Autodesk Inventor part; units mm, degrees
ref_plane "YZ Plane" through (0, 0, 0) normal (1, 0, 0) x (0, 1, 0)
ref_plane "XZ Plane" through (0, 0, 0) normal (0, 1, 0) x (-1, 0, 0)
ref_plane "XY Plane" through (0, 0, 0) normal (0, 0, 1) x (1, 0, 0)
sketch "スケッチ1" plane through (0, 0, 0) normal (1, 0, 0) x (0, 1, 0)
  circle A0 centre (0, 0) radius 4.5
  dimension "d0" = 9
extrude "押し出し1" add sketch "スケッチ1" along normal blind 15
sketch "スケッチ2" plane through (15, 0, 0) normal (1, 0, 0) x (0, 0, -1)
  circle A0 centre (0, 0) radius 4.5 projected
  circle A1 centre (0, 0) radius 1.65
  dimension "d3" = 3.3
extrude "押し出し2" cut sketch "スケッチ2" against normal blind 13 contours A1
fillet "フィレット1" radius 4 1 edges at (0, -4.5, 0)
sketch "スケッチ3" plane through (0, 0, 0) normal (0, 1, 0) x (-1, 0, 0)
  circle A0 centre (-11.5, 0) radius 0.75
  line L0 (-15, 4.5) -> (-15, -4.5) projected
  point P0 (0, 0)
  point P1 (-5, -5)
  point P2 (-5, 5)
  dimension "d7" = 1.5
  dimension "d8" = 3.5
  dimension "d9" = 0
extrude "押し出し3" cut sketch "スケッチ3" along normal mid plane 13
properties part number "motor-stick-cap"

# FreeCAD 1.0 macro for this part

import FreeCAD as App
import Part
import Sketcher
from FreeCAD import Vector
Q = App.Units.Quantity


def edges_at(feature, points):
    """Names of the edges that pass closest to the given points."""
    edges = feature.Shape.Edges
    near = lambda p: min(range(len(edges)), key=lambda i: edges[i].distToShape(Part.Vertex(*p))[0])
    return sorted({f"Edge{near(p) + 1}" for p in points})

doc = App.newDocument("Part")
body = doc.addObject("PartDesign::Body", "Body")

# Sketch on YZ plane
sketch1 = body.newObject("Sketcher::SketchObject", "Sketch")
sketch1.AttachmentSupport = (doc.getObject("YZ_Plane"), [""])
sketch1.MapMode = "FlatFace"
sketch1.addGeometry(Part.Circle(Vector(0, 0, 0), Vector(0, 0, 1), 4.5), False)
sketch1.addConstraint([
    Sketcher.Constraint("Coincident", 0, 3, -1, 1),
    Sketcher.Constraint("Diameter", 0, Q("9 mm")),
])
pad1 = body.newObject("PartDesign::Pad", "Pad")
pad1.Profile = sketch1
pad1.Length = 15

# Sketch on YZ plane
sketch2 = body.newObject("Sketcher::SketchObject", "Sketch001")
sketch2.AttachmentSupport = (doc.getObject("YZ_Plane"), [""])
sketch2.MapMode = "FlatFace"
sketch2.AttachmentOffset = App.Placement(Vector(0, 0, 15), App.Rotation())
sketch2.addGeometry(Part.Circle(Vector(0, 0, 0), Vector(0, 0, 1), 1.6), False)
sketch2.addConstraint([
    Sketcher.Constraint("Coincident", 0, 3, -1, 1),
    Sketcher.Constraint("Diameter", 0, Q("3.3 mm")),
])
pocket1 = body.newObject("PartDesign::Pocket", "Pocket")
pocket1.Profile = sketch2
pocket1.Length = 13
doc.recompute()

fillet = body.newObject("PartDesign::Fillet", "Fillet")
fillet.Base = (pocket1, edges_at(pocket1, [(0, -4.5, 0)]))
fillet.Radius = 4

# Sketch on XZ plane
sketch3 = body.newObject("Sketcher::SketchObject", "Sketch002")
sketch3.AttachmentSupport = (doc.getObject("XZ_Plane"), [""])
sketch3.MapMode = "FlatFace"
sketch3.addGeometry(Part.Circle(Vector(11.5, 0, 0), Vector(0, 0, 1), 0.8), False)
sketch3.addConstraint([
    Sketcher.Constraint("PointOnObject", 0, 3, -1),
    Sketcher.Constraint("Diameter", 0, Q("1.5 mm")),
    Sketcher.Constraint("DistanceX", -1, 1, 0, 3, Q("11.5 mm")),
])
pocket2 = body.newObject("PartDesign::Pocket", "Pocket001")
pocket2.Profile = sketch3
pocket2.Length = 13
pocket2.Midplane = True

doc.recompute()
